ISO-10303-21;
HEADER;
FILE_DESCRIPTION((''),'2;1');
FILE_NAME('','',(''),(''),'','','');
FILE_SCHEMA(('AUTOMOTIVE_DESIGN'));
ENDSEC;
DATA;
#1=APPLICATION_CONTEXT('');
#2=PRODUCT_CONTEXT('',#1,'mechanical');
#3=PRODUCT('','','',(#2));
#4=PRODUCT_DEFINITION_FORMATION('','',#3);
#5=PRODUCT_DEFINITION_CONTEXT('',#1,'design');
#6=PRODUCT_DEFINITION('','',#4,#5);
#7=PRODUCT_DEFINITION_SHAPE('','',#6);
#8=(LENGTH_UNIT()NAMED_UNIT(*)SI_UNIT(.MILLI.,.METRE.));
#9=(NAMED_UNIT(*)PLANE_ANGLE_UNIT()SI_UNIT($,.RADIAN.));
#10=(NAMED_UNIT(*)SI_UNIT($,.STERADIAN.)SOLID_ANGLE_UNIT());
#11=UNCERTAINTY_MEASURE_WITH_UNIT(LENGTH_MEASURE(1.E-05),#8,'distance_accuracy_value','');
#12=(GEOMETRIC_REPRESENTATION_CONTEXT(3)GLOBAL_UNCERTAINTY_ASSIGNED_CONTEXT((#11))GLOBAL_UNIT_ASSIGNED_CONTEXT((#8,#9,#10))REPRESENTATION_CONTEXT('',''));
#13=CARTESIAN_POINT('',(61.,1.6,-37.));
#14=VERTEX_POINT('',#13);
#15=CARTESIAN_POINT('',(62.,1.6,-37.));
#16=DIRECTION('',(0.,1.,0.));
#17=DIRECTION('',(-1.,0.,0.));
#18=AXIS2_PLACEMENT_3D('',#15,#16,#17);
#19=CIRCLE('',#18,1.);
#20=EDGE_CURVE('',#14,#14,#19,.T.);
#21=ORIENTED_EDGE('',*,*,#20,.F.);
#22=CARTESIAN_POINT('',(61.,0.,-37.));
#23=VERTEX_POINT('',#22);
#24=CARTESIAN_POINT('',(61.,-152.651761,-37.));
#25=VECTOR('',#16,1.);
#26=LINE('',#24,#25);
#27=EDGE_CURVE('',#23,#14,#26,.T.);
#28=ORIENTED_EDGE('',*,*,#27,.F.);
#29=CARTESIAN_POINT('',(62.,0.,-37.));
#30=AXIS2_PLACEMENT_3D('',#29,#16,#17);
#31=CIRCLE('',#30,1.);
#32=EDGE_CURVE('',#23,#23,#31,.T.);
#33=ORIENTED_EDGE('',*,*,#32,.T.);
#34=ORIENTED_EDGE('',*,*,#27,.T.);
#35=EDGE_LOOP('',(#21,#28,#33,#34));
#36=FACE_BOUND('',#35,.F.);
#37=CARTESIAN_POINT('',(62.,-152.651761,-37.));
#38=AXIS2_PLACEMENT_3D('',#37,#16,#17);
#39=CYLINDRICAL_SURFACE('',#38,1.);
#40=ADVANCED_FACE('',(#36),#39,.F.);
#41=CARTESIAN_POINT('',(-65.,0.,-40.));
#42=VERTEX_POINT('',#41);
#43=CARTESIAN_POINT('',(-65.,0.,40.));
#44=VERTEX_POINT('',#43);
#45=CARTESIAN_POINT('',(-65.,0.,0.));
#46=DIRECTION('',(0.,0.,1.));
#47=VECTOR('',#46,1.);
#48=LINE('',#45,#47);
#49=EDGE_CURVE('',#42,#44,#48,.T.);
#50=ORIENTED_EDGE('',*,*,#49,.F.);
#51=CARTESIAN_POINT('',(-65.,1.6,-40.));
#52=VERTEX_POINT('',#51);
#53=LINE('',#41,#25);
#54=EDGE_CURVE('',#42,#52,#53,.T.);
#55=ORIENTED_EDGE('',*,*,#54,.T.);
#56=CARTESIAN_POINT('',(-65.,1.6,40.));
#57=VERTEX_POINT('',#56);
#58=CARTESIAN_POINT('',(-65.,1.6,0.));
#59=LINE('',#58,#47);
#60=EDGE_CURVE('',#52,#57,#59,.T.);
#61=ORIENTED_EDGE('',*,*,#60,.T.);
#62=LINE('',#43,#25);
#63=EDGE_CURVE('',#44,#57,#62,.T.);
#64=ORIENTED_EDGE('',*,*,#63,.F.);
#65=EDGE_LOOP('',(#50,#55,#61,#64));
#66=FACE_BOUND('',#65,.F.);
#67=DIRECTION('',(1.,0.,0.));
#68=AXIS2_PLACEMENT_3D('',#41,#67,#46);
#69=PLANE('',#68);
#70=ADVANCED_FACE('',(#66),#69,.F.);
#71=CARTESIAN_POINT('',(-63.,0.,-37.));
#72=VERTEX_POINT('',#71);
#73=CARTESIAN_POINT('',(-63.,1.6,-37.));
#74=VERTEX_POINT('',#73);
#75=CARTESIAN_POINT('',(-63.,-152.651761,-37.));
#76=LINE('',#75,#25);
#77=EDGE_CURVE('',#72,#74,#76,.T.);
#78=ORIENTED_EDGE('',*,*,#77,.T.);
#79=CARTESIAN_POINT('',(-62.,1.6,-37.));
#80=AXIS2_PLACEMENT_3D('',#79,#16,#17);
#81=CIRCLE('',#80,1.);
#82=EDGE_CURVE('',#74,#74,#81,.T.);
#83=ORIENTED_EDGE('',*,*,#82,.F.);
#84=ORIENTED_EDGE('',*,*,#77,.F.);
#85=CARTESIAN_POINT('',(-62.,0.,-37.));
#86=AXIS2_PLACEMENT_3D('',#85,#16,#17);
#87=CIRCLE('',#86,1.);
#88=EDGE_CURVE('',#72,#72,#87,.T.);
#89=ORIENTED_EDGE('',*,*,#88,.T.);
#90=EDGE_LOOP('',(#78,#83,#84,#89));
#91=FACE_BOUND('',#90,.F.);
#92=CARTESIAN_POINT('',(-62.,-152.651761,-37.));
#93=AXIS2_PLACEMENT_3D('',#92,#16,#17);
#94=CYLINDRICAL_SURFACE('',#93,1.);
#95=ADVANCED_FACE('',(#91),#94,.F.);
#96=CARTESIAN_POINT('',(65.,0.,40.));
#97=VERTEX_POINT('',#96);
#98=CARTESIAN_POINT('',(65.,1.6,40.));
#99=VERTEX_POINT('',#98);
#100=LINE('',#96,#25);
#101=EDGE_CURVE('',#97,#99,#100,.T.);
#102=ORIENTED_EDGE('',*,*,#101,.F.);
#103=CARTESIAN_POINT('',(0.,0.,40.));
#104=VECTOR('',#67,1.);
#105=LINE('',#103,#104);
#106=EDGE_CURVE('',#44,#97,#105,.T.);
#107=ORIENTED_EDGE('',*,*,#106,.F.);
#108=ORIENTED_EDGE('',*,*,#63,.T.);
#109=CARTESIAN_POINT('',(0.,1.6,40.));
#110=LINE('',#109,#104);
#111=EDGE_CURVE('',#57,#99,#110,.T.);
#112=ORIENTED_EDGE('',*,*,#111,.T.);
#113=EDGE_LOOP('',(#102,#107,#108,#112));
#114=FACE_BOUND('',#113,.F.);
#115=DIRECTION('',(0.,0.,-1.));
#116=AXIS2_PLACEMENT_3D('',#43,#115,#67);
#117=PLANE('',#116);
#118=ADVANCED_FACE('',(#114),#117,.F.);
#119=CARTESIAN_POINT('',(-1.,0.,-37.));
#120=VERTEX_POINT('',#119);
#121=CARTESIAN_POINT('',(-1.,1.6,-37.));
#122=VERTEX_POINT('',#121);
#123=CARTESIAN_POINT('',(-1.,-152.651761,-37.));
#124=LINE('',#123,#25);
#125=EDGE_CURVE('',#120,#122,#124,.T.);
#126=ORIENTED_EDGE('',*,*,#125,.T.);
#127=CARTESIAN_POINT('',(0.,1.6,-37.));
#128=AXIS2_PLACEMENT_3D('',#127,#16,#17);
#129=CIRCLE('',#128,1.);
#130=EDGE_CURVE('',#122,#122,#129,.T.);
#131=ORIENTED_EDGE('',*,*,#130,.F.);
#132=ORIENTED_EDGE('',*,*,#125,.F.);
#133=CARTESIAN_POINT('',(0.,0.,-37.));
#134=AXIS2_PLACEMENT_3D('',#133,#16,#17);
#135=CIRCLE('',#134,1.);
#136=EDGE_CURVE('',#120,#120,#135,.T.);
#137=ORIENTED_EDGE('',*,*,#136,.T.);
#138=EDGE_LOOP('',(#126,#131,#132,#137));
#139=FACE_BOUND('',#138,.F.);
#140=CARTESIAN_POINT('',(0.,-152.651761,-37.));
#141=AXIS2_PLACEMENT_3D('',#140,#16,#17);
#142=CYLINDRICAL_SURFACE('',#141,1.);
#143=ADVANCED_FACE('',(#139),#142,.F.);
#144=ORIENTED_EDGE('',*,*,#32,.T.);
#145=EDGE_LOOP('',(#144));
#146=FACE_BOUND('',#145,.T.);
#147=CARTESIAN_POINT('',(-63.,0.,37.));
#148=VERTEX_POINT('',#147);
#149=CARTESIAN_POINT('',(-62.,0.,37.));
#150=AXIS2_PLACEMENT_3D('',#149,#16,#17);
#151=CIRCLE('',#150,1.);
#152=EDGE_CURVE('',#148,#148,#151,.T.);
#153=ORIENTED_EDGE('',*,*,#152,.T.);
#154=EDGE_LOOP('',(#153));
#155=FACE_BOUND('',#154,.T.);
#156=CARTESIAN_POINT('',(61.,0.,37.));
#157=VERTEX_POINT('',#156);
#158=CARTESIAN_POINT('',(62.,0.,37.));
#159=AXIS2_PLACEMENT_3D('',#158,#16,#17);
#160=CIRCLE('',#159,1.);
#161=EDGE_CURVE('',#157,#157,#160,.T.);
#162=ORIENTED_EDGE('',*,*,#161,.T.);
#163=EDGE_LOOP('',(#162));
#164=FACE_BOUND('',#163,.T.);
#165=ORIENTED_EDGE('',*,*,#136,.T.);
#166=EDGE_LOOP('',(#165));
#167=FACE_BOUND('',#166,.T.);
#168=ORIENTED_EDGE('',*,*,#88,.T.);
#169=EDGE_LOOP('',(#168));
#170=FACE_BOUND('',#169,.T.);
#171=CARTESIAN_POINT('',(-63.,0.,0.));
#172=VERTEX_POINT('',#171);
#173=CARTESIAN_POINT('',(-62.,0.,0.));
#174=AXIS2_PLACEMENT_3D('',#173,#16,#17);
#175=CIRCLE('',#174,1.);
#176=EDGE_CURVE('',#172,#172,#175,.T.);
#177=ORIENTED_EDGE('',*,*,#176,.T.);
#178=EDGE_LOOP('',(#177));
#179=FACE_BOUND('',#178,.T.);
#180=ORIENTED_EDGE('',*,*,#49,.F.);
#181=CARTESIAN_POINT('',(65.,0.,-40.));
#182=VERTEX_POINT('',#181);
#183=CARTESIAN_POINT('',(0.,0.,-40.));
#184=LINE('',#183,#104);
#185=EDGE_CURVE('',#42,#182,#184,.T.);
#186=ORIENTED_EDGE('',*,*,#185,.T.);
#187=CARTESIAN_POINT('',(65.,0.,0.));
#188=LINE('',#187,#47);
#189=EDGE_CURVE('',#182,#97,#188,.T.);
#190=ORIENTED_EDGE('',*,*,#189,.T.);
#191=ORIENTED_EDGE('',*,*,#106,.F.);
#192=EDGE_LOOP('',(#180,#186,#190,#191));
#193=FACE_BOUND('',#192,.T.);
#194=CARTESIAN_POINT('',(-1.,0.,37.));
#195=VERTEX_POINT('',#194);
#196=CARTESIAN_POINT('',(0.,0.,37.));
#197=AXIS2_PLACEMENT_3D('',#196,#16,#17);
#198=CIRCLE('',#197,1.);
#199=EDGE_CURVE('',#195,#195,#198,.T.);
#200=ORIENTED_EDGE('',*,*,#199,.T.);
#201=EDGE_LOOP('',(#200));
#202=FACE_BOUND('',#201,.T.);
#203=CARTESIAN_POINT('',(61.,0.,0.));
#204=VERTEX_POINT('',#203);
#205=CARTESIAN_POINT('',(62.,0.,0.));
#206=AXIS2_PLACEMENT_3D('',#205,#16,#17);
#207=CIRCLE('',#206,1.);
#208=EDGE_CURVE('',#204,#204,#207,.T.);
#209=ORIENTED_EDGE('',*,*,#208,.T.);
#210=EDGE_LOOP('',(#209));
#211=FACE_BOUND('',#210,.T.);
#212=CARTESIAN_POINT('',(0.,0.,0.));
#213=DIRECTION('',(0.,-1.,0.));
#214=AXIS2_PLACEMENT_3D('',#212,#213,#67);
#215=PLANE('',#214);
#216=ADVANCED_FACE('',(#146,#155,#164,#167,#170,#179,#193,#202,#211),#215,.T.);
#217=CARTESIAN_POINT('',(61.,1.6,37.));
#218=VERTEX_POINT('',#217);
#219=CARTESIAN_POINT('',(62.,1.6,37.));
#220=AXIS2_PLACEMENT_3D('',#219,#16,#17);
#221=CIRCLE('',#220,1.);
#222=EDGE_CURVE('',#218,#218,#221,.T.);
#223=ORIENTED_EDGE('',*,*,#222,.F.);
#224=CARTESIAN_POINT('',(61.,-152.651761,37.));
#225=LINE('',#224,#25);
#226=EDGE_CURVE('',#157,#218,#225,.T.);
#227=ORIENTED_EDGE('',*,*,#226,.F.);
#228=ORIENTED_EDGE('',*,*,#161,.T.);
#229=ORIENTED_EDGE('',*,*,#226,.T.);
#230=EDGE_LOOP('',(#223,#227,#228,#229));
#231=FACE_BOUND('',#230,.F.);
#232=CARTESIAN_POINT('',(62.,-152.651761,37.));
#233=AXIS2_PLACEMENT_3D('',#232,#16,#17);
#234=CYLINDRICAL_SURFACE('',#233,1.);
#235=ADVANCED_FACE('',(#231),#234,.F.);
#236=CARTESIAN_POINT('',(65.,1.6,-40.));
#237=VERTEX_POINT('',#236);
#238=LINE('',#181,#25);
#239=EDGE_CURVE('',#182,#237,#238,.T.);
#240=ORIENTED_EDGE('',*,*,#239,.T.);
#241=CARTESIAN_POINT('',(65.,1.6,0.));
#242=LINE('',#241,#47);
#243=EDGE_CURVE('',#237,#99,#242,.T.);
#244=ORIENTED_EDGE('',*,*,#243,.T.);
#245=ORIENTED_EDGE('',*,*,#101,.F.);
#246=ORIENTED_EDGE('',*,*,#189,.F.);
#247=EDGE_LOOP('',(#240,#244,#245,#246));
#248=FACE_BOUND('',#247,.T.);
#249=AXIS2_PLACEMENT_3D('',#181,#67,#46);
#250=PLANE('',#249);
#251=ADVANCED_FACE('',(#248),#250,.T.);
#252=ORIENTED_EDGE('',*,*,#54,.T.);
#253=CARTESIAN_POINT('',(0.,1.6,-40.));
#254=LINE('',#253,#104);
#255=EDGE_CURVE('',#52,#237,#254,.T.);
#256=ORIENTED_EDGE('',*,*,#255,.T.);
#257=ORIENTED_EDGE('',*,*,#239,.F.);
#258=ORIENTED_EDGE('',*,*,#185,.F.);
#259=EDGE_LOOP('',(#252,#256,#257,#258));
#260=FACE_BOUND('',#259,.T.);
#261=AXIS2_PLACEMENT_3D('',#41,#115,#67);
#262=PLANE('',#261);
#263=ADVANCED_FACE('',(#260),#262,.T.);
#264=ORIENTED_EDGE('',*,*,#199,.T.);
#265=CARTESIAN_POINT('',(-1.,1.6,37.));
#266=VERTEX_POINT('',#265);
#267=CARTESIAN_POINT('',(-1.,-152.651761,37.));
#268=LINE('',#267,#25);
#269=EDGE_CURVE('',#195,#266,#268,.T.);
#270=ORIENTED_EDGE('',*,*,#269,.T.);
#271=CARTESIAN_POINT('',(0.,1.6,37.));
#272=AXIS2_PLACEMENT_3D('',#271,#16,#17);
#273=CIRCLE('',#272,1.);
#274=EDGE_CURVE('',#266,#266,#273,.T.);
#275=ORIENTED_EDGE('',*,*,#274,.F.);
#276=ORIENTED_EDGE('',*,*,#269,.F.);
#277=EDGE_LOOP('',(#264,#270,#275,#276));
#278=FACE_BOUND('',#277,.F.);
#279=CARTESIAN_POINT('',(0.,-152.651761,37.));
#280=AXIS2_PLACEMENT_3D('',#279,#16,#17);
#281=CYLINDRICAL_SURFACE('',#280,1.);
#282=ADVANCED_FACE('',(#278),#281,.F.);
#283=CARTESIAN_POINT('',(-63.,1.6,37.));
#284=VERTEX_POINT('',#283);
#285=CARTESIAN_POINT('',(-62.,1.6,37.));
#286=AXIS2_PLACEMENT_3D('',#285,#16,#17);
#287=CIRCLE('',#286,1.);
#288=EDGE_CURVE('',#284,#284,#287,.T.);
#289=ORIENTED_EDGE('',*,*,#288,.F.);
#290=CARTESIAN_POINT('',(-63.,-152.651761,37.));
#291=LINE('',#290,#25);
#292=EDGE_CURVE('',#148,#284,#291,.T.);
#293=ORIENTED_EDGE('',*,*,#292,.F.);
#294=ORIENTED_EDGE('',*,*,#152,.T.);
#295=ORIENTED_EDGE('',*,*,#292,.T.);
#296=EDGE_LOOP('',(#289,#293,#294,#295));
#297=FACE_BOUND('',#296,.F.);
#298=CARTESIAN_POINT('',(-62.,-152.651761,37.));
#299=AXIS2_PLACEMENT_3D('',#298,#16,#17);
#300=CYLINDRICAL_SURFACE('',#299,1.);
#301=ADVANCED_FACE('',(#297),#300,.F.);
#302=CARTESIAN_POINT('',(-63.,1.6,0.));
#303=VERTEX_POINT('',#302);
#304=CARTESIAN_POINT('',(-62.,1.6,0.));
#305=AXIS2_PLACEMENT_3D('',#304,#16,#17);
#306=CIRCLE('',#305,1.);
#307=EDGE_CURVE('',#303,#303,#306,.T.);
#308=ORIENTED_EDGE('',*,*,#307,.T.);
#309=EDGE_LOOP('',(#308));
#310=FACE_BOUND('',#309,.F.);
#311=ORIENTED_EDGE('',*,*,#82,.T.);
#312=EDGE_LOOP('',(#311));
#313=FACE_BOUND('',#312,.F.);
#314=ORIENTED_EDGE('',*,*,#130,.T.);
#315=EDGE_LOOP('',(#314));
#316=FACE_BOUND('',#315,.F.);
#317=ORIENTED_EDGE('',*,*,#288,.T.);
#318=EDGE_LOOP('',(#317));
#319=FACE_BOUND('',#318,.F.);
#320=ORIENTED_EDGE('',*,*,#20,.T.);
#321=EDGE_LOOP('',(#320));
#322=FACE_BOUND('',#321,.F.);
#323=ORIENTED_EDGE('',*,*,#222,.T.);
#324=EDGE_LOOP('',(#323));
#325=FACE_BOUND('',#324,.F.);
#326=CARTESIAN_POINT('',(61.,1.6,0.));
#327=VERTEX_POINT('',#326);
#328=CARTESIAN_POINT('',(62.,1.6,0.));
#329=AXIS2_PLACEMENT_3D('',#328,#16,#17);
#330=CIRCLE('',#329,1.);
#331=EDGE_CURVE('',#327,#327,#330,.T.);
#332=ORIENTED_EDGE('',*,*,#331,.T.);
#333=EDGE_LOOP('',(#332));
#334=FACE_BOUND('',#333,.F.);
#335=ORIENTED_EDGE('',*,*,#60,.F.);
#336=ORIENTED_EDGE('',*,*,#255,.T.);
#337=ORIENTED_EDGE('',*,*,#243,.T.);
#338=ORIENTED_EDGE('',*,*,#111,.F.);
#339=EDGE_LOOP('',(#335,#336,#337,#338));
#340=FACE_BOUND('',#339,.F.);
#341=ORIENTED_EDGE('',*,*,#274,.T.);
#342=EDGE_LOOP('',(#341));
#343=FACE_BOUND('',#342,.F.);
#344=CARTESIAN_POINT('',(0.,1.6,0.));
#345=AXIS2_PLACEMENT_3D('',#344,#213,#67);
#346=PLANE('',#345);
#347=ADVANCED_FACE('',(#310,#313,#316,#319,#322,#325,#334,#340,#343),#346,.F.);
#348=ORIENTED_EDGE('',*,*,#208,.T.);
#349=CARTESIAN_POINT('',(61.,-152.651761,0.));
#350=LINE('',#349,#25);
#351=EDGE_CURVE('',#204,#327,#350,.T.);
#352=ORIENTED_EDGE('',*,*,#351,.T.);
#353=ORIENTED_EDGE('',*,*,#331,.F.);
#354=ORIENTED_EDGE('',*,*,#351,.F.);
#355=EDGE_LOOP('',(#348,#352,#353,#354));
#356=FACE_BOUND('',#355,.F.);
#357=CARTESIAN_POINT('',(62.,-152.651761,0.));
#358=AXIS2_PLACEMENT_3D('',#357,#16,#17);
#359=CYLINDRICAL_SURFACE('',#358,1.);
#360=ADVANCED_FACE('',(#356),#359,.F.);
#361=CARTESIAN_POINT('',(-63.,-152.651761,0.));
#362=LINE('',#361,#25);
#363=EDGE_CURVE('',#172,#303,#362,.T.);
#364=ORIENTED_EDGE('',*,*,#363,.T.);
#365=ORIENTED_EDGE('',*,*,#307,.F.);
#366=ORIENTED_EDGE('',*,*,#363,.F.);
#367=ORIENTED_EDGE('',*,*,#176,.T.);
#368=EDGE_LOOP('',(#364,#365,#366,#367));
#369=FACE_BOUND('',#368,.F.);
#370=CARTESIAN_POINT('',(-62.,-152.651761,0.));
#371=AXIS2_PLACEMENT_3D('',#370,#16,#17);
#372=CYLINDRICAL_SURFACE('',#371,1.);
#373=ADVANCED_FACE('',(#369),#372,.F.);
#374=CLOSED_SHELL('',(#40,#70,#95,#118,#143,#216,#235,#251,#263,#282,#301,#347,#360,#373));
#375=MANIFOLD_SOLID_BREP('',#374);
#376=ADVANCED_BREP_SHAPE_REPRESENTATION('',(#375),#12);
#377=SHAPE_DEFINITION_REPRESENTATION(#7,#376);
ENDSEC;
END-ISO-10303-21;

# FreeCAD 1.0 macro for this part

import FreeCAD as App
import Part
import Sketcher
Q = App.Units.Quantity

doc = App.newDocument("Part")
body = doc.addObject("PartDesign::Body", "Body")

sketch1 = body.newObject("Sketcher::SketchObject", "Sketch")
sketch1.AttachmentSupport = (doc.getObject("XZ_Plane"), [""])
sketch1.MapMode = "FlatFace"
sketch1.addGeometry(Part.LineSegment(App.Vector(-65, 40, 0), App.Vector(-65, -40, 0)), False)
sketch1.addGeometry(Part.LineSegment(App.Vector(-65, -40, 0), App.Vector(65, -40, 0)), False)
sketch1.addGeometry(Part.LineSegment(App.Vector(65, -40, 0), App.Vector(65, 40, 0)), False)
sketch1.addGeometry(Part.LineSegment(App.Vector(65, 40, 0), App.Vector(-65, 40, 0)), False)
sketch1.addConstraint(Sketcher.Constraint("Coincident", 0, 2, 1, 1))
sketch1.addConstraint(Sketcher.Constraint("Coincident", 1, 2, 2, 1))
sketch1.addConstraint(Sketcher.Constraint("Coincident", 2, 2, 3, 1))
sketch1.addConstraint(Sketcher.Constraint("Coincident", 3, 2, 0, 1))
sketch1.addConstraint(Sketcher.Constraint("Vertical", 0))
sketch1.addConstraint(Sketcher.Constraint("Horizontal", 1))
sketch1.addConstraint(Sketcher.Constraint("Vertical", 2))
sketch1.addConstraint(Sketcher.Constraint("Horizontal", 3))
sketch1.addConstraint(Sketcher.Constraint("Symmetric", 0, 2, 2, 2, -1, 1))
sketch1.addConstraint(Sketcher.Constraint("DistanceX", 1, 1, 1, 2, Q("130 mm")))
sketch1.addConstraint(Sketcher.Constraint("DistanceY", 0, 2, 0, 1, Q("80 mm")))
pad1 = body.newObject("PartDesign::Pad", "Pad")
pad1.Profile = sketch1
pad1.Length = 1.6
pad1.Reversed = True

sketch2 = body.newObject("Sketcher::SketchObject", "Sketch001")
sketch2.AttachmentSupport = (doc.getObject("XZ_Plane"), [""])
sketch2.MapMode = "FlatFace"
sketch2.addGeometry(Part.Circle(App.Vector(-62, 37, 0), App.Vector(0, 0, 1), 1), False)
sketch2.addGeometry(Part.Circle(App.Vector(0, 37, 0), App.Vector(0, 0, 1), 1), False)
sketch2.addGeometry(Part.Circle(App.Vector(62, 37, 0), App.Vector(0, 0, 1), 1), False)
sketch2.addGeometry(Part.Circle(App.Vector(62, 0, 0), App.Vector(0, 0, 1), 1), False)
sketch2.addGeometry(Part.Circle(App.Vector(62, -37, 0), App.Vector(0, 0, 1), 1), False)
sketch2.addGeometry(Part.Circle(App.Vector(0, -37, 0), App.Vector(0, 0, 1), 1), False)
sketch2.addGeometry(Part.Circle(App.Vector(-62, -37, 0), App.Vector(0, 0, 1), 1), False)
sketch2.addGeometry(Part.Circle(App.Vector(-62, 0, 0), App.Vector(0, 0, 1), 1), False)
sketch2.addConstraint(Sketcher.Constraint("Equal", 0, 1))
sketch2.addConstraint(Sketcher.Constraint("Equal", 1, 2))
sketch2.addConstraint(Sketcher.Constraint("Equal", 2, 3))
sketch2.addConstraint(Sketcher.Constraint("Equal", 3, 4))
sketch2.addConstraint(Sketcher.Constraint("Equal", 4, 5))
sketch2.addConstraint(Sketcher.Constraint("Equal", 5, 6))
sketch2.addConstraint(Sketcher.Constraint("Equal", 6, 7))
sketch2.addConstraint(Sketcher.Constraint("Symmetric", 0, 3, 4, 3, -1, 1))
sketch2.addConstraint(Sketcher.Constraint("Symmetric", 1, 3, 5, 3, -1, 1))
sketch2.addConstraint(Sketcher.Constraint("Symmetric", 2, 3, 6, 3, -1, 1))
sketch2.addConstraint(Sketcher.Constraint("Symmetric", 3, 3, 7, 3, -1, 1))
sketch2.addConstraint(Sketcher.Constraint("Symmetric", 0, 3, 2, 3, -2))
sketch2.addConstraint(Sketcher.Constraint("PointOnObject", 1, 3, -2))
sketch2.addConstraint(Sketcher.Constraint("PointOnObject", 3, 3, -1))
sketch2.addConstraint(Sketcher.Constraint("Horizontal", 0, 3, 1, 3))
sketch2.addConstraint(Sketcher.Constraint("Vertical", 2, 3, 3, 3))
sketch2.addConstraint(Sketcher.Constraint("Diameter", 0, Q("2 mm")))
sketch2.addConstraint(Sketcher.Constraint("DistanceX", 0, 3, -1, 1, Q("62 mm")))
sketch2.addConstraint(Sketcher.Constraint("DistanceY", -1, 1, 0, 3, Q("37 mm")))
doc.recompute()
hole = body.newObject("PartDesign::Hole", "Hole")
hole.Profile = sketch2
hole.ThreadType = "None"
hole.Diameter = 2
hole.DepthType = "ThroughAll"

doc.recompute()
